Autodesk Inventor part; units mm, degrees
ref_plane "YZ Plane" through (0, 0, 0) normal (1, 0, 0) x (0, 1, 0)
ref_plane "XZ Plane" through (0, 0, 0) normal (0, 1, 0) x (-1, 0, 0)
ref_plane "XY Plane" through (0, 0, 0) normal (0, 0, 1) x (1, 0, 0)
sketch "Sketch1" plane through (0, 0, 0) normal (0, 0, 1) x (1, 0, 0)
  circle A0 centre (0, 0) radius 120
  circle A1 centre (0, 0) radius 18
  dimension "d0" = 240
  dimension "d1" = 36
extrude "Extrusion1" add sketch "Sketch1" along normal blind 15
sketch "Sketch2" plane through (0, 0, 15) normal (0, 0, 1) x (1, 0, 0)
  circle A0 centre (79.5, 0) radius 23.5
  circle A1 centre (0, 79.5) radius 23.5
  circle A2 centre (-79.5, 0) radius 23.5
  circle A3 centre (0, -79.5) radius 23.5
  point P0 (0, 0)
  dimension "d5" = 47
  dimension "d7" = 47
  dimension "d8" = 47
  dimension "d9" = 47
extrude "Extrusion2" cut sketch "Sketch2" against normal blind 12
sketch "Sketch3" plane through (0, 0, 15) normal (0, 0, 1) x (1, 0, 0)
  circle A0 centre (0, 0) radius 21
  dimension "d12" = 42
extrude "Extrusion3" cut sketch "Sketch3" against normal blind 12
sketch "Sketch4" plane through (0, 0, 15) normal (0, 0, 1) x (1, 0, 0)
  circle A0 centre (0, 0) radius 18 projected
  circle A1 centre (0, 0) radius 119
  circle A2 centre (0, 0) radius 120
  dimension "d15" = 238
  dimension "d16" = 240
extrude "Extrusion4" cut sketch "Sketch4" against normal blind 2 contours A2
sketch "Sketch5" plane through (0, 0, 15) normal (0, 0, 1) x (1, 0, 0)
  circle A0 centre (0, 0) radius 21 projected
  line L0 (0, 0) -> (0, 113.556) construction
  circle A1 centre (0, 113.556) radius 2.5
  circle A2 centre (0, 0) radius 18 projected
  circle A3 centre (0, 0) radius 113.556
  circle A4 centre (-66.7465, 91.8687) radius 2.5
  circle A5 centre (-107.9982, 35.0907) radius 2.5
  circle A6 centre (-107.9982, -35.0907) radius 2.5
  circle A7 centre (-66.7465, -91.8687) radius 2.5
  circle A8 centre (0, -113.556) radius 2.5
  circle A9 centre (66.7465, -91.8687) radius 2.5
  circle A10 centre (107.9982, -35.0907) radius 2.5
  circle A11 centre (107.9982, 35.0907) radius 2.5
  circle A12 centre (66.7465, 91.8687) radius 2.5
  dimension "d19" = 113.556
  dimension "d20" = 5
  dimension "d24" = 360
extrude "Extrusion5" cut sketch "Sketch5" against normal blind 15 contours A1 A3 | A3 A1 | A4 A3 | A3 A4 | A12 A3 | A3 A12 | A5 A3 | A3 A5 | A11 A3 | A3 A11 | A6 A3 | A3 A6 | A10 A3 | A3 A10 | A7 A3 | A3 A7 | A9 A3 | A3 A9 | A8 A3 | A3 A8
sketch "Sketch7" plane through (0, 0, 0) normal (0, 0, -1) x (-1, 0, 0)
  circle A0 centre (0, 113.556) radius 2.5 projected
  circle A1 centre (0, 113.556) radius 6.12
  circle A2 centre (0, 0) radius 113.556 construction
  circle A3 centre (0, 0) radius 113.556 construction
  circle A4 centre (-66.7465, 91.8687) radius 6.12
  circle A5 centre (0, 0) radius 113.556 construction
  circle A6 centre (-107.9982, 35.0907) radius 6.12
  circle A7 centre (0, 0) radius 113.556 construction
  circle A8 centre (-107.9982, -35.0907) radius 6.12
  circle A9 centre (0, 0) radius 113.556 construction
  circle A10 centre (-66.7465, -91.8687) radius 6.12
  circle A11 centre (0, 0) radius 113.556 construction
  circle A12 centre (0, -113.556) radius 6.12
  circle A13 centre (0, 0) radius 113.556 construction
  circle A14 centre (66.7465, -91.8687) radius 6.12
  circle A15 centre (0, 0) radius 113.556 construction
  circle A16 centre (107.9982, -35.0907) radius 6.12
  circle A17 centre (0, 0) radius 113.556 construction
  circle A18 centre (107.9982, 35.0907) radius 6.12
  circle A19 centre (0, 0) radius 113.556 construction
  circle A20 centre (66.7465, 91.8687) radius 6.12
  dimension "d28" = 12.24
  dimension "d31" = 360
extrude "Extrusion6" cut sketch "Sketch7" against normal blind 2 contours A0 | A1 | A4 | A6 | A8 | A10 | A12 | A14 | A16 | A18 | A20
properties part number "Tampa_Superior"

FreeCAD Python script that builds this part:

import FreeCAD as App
import Part
import Sketcher
from FreeCAD import Vector
Q = App.Units.Quantity

doc = App.newDocument("Part")
body = doc.addObject("PartDesign::Body", "Body")

# Sketch on XY plane
sketch1 = body.newObject("Sketcher::SketchObject", "Sketch")
sketch1.AttachmentSupport = (doc.getObject("XY_Plane"), [""])
sketch1.MapMode = "FlatFace"
sketch1.addGeometry([
    Part.Circle(Vector(0, 0, 0), Vector(0, 0, 1), 120),
    Part.Circle(Vector(0, 0, 0), Vector(0, 0, 1), 18),
], False)
sketch1.addConstraint([
    Sketcher.Constraint("Coincident", 0, 3, -1, 1),
    Sketcher.Constraint("Coincident", 1, 3, -1, 1),
    Sketcher.Constraint("Diameter", 0, Q("240 mm")),
    Sketcher.Constraint("Diameter", 1, Q("36 mm")),
])
pad1 = body.newObject("PartDesign::Pad", "Pad")
pad1.Profile = sketch1
pad1.Length = 15

# Sketch on XY plane
sketch2 = body.newObject("Sketcher::SketchObject", "Sketch001")
sketch2.AttachmentSupport = (doc.getObject("XY_Plane"), [""])
sketch2.MapMode = "FlatFace"
sketch2.AttachmentOffset = App.Placement(Vector(0, 0, 15), App.Rotation())
sketch2.addGeometry([
    Part.Circle(Vector(80, 0, 0), Vector(0, 0, 1), 24),
    Part.Circle(Vector(0, 80, 0), Vector(0, 0, 1), 24),
    Part.Circle(Vector(-80, 0, 0), Vector(0, 0, 1), 24),
    Part.Circle(Vector(0, -80, 0), Vector(0, 0, 1), 24),
], False)
sketch2.addConstraint([
    Sketcher.Constraint("Equal", 0, 1),
    Sketcher.Constraint("Equal", 1, 2),
    Sketcher.Constraint("Equal", 2, 3),
    Sketcher.Constraint("Symmetric", 0, 3, 2, 3, -1, 1),
    Sketcher.Constraint("Symmetric", 1, 3, 3, 3, -1, 1),
    Sketcher.Constraint("PointOnObject", 0, 3, -1),
    Sketcher.Constraint("PointOnObject", 1, 3, -2),
    Sketcher.Constraint("Diameter", 0, Q("47 mm")),
    Sketcher.Constraint("DistanceX", 2, 3, 0, 3, Q("159 mm")),
    Sketcher.Constraint("DistanceY", 3, 3, 1, 3, Q("159 mm")),
])
pocket1 = body.newObject("PartDesign::Pocket", "Pocket")
pocket1.Profile = sketch2
pocket1.Length = 12

# Sketch on XY plane
sketch3 = body.newObject("Sketcher::SketchObject", "Sketch002")
sketch3.AttachmentSupport = (doc.getObject("XY_Plane"), [""])
sketch3.MapMode = "FlatFace"
sketch3.AttachmentOffset = App.Placement(Vector(0, 0, 15), App.Rotation())
sketch3.addGeometry(Part.Circle(Vector(0, 0, 0), Vector(0, 0, 1), 21), False)
sketch3.addConstraint([
    Sketcher.Constraint("Coincident", 0, 3, -1, 1),
    Sketcher.Constraint("Diameter", 0, Q("42 mm")),
])
pocket2 = body.newObject("PartDesign::Pocket", "Pocket001")
pocket2.Profile = sketch3
pocket2.Length = 12

# Sketch on XY plane
sketch4 = body.newObject("Sketcher::SketchObject", "Sketch003")
sketch4.AttachmentSupport = (doc.getObject("XY_Plane"), [""])
sketch4.MapMode = "FlatFace"
sketch4.AttachmentOffset = App.Placement(Vector(0, 0, 15), App.Rotation())
sketch4.addGeometry([
    Part.Circle(Vector(0, 0, 0), Vector(0, 0, 1), 120),
    Part.Circle(Vector(0, 0, 0), Vector(0, 0, 1), 119),
], False)
sketch4.addConstraint([
    Sketcher.Constraint("Coincident", 0, 3, -1, 1),
    Sketcher.Constraint("Coincident", 1, 3, -1, 1),
    Sketcher.Constraint("Diameter", 0, Q("240 mm")),
    Sketcher.Constraint("Diameter", 1, Q("238 mm")),
])
pocket3 = body.newObject("PartDesign::Pocket", "Pocket002")
pocket3.Profile = sketch4
pocket3.Length = 2

# Sketch on XY plane
sketch5 = body.newObject("Sketcher::SketchObject", "Sketch004")
sketch5.AttachmentSupport = (doc.getObject("XY_Plane"), [""])
sketch5.MapMode = "FlatFace"
sketch5.AttachmentOffset = App.Placement(Vector(0, 0, 15), App.Rotation())
sketch5.addGeometry([
    Part.Circle(Vector(0, 113.6, 0), Vector(0, 0, 1), 2.5),  # 0
    Part.Circle(Vector(-66.7, 91.9, 0), Vector(0, 0, 1), 2.5),  # 1
    Part.Circle(Vector(66.7, 91.9, 0), Vector(0, 0, 1), 2.5),  # 2
    Part.Circle(Vector(-108, 35.1, 0), Vector(0, 0, 1), 2.5),  # 3
    Part.Circle(Vector(108, 35.1, 0), Vector(0, 0, 1), 2.5),  # 4
    Part.Circle(Vector(-108, -35.1, 0), Vector(0, 0, 1), 2.5),  # 5
    Part.Circle(Vector(108, -35.1, 0), Vector(0, 0, 1), 2.5),  # 6
    Part.Circle(Vector(-66.7, -91.9, 0), Vector(0, 0, 1), 2.5),  # 7
    Part.Circle(Vector(66.7, -91.9, 0), Vector(0, 0, 1), 2.5),  # 8
    Part.Circle(Vector(0, -113.6, 0), Vector(0, 0, 1), 2.5),  # 9
], False)
sketch5.addConstraint([
    Sketcher.Constraint("Equal", 0, 1),
    Sketcher.Constraint("Equal", 1, 2),
    Sketcher.Constraint("Equal", 2, 3),
    Sketcher.Constraint("Equal", 3, 4),
    Sketcher.Constraint("Equal", 4, 5),
    Sketcher.Constraint("Equal", 5, 6),
    Sketcher.Constraint("Equal", 6, 7),
    Sketcher.Constraint("Equal", 7, 8),
    Sketcher.Constraint("Equal", 8, 9),
    Sketcher.Constraint("Symmetric", 4, 3, 5, 3, -1, 1),
    Sketcher.Constraint("Symmetric", 3, 3, 6, 3, -1, 1),
    Sketcher.Constraint("Symmetric", 2, 3, 7, 3, -1, 1),
    Sketcher.Constraint("Symmetric", 1, 3, 8, 3, -1, 1),
    Sketcher.Constraint("Symmetric", 0, 3, 9, 3, -1, 1),
    Sketcher.Constraint("Symmetric", 1, 3, 2, 3, -2),
    Sketcher.Constraint("Symmetric", 3, 3, 4, 3, -2),
    Sketcher.Constraint("PointOnObject", 0, 3, -2),
    Sketcher.Constraint("Diameter", 0, Q("5 mm")),
    Sketcher.Constraint("DistanceY", -1, 1, 0, 3, Q("113.556 mm")),
    Sketcher.Constraint("DistanceX", 1, 3, 2, 3, Q("133.493 mm")),
    Sketcher.Constraint("DistanceY", 3, 3, 1, 3, Q("56.778 mm")),
    Sketcher.Constraint("DistanceY", -1, 1, 1, 3, Q("91.8687 mm")),
    Sketcher.Constraint("DistanceX", 3, 3, -1, 1, Q("107.9982 mm")),
])
pocket4 = body.newObject("PartDesign::Pocket", "Pocket003")
pocket4.Profile = sketch5
pocket4.Length = 15

# Sketch on XY plane
sketch6 = body.newObject("Sketcher::SketchObject", "Sketch005")
sketch6.AttachmentSupport = (doc.getObject("XY_Plane"), [""])
sketch6.MapMode = "FlatFace"
sketch6.addGeometry([
    Part.Circle(Vector(0, 114, 0), Vector(0, 0, 1), 6),  # 0
    Part.Circle(Vector(67, 92, 0), Vector(0, 0, 1), 6),  # 1
    Part.Circle(Vector(108, 35, 0), Vector(0, 0, 1), 6),  # 2
    Part.Circle(Vector(108, -35, 0), Vector(0, 0, 1), 6),  # 3
    Part.Circle(Vector(67, -92, 0), Vector(0, 0, 1), 6),  # 4
    Part.Circle(Vector(0, -114, 0), Vector(0, 0, 1), 6),  # 5
    Part.Circle(Vector(-67, -92, 0), Vector(0, 0, 1), 6),  # 6
    Part.Circle(Vector(-108, -35, 0), Vector(0, 0, 1), 6),  # 7
    Part.Circle(Vector(-108, 35, 0), Vector(0, 0, 1), 6),  # 8
    Part.Circle(Vector(-67, 92, 0), Vector(0, 0, 1), 6),  # 9
], False)
sketch6.addConstraint([
    Sketcher.Constraint("Equal", 0, 1),
    Sketcher.Constraint("Equal", 1, 2),
    Sketcher.Constraint("Equal", 2, 3),
    Sketcher.Constraint("Equal", 3, 4),
    Sketcher.Constraint("Equal", 4, 5),
    Sketcher.Constraint("Equal", 5, 6),
    Sketcher.Constraint("Equal", 6, 7),
    Sketcher.Constraint("Equal", 7, 8),
    Sketcher.Constraint("Equal", 8, 9),
    Sketcher.Constraint("Symmetric", 0, 3, 5, 3, -1, 1),
    Sketcher.Constraint("Symmetric", 1, 3, 6, 3, -1, 1),
    Sketcher.Constraint("Symmetric", 2, 3, 7, 3, -1, 1),
    Sketcher.Constraint("Symmetric", 3, 3, 8, 3, -1, 1),
    Sketcher.Constraint("Symmetric", 4, 3, 9, 3, -1, 1),
    Sketcher.Constraint("Symmetric", 4, 3, 6, 3, -2),
    Sketcher.Constraint("Symmetric", 3, 3, 7, 3, -2),
    Sketcher.Constraint("PointOnObject", 0, 3, -2),
    Sketcher.Constraint("Diameter", 0, Q("12.24 mm")),
    Sketcher.Constraint("DistanceY", -1, 1, 0, 3, Q("113.556 mm")),
    Sketcher.Constraint("DistanceY", 2, 3, 1, 3, Q("56.778 mm")),
    Sketcher.Constraint("DistanceX", 6, 3, 4, 3, Q("133.493 mm")),
    Sketcher.Constraint("DistanceY", -1, 1, 1, 3, Q("91.8687 mm")),
    Sketcher.Constraint("DistanceX", -1, 1, 2, 3, Q("107.9982 mm")),
])
pocket5 = body.newObject("PartDesign::Pocket", "Pocket004")
pocket5.Profile = sketch6
pocket5.Length = 2
pocket5.Reversed = True

doc.recompute()
